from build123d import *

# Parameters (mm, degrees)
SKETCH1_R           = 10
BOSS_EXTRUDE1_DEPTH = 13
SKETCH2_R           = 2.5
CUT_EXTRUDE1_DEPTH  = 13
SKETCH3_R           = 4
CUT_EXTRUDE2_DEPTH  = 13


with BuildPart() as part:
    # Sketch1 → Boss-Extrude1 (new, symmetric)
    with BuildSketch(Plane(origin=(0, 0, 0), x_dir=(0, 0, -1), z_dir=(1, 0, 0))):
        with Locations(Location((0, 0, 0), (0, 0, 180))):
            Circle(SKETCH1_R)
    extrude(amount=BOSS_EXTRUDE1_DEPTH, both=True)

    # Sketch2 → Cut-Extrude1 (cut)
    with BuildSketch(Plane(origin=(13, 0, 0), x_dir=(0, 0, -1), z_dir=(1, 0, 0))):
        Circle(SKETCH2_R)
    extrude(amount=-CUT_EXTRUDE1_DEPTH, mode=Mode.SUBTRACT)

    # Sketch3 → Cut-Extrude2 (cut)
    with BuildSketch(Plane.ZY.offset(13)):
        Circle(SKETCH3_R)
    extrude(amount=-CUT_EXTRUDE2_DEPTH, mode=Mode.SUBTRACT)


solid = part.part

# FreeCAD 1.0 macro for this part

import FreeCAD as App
import Part
import Sketcher

V = App.Vector

doc = App.newDocument("Part")
body = doc.addObject("PartDesign::Body", "Body")

sketch1 = body.newObject("Sketcher::SketchObject", "Sketch")
sketch1.AttachmentSupport = (doc.getObject("YZ_Plane"), [""])
sketch1.MapMode = "FlatFace"
sketch1.addGeometry(Part.Circle(V(0, 0, 0), V(0, 0, 1), 10), False)
sketch1.addConstraint([
    Sketcher.Constraint("Coincident", 0, 3, -1, 1),
    Sketcher.Constraint("Diameter", 0, 20.0),
])
pad1 = body.newObject("PartDesign::Pad", "Pad")
pad1.Profile = sketch1
pad1.Length = 26
pad1.Midplane = True

sketch2 = body.newObject("Sketcher::SketchObject", "Sketch001")
sketch2.AttachmentSupport = (doc.getObject("YZ_Plane"), [""])
sketch2.MapMode = "FlatFace"
sketch2.AttachmentOffset = App.Placement(V(0, 0, 13), App.Rotation())
sketch2.addGeometry(Part.Circle(V(0, 0, 0), V(0, 0, 1), 2.5), False)
sketch2.addConstraint([
    Sketcher.Constraint("Coincident", 0, 3, -1, 1),
    Sketcher.Constraint("Diameter", 0, 5.0),
])
pocket1 = body.newObject("PartDesign::Pocket", "Pocket")
pocket1.Profile = sketch2
pocket1.Length = 13

sketch3 = body.newObject("Sketcher::SketchObject", "Sketch002")
sketch3.AttachmentSupport = (doc.getObject("YZ_Plane"), [""])
sketch3.MapMode = "FlatFace"
sketch3.AttachmentOffset = App.Placement(V(0, 0, -13), App.Rotation())
sketch3.addGeometry(Part.Circle(V(0, 0, 0), V(0, 0, 1), 4), False)
sketch3.addConstraint([
    Sketcher.Constraint("Coincident", 0, 3, -1, 1),
    Sketcher.Constraint("Diameter", 0, 8.0),
])
pocket2 = body.newObject("PartDesign::Pocket", "Pocket001")
pocket2.Profile = sketch3
pocket2.Length = 13
pocket2.Reversed = True

doc.recompute()
